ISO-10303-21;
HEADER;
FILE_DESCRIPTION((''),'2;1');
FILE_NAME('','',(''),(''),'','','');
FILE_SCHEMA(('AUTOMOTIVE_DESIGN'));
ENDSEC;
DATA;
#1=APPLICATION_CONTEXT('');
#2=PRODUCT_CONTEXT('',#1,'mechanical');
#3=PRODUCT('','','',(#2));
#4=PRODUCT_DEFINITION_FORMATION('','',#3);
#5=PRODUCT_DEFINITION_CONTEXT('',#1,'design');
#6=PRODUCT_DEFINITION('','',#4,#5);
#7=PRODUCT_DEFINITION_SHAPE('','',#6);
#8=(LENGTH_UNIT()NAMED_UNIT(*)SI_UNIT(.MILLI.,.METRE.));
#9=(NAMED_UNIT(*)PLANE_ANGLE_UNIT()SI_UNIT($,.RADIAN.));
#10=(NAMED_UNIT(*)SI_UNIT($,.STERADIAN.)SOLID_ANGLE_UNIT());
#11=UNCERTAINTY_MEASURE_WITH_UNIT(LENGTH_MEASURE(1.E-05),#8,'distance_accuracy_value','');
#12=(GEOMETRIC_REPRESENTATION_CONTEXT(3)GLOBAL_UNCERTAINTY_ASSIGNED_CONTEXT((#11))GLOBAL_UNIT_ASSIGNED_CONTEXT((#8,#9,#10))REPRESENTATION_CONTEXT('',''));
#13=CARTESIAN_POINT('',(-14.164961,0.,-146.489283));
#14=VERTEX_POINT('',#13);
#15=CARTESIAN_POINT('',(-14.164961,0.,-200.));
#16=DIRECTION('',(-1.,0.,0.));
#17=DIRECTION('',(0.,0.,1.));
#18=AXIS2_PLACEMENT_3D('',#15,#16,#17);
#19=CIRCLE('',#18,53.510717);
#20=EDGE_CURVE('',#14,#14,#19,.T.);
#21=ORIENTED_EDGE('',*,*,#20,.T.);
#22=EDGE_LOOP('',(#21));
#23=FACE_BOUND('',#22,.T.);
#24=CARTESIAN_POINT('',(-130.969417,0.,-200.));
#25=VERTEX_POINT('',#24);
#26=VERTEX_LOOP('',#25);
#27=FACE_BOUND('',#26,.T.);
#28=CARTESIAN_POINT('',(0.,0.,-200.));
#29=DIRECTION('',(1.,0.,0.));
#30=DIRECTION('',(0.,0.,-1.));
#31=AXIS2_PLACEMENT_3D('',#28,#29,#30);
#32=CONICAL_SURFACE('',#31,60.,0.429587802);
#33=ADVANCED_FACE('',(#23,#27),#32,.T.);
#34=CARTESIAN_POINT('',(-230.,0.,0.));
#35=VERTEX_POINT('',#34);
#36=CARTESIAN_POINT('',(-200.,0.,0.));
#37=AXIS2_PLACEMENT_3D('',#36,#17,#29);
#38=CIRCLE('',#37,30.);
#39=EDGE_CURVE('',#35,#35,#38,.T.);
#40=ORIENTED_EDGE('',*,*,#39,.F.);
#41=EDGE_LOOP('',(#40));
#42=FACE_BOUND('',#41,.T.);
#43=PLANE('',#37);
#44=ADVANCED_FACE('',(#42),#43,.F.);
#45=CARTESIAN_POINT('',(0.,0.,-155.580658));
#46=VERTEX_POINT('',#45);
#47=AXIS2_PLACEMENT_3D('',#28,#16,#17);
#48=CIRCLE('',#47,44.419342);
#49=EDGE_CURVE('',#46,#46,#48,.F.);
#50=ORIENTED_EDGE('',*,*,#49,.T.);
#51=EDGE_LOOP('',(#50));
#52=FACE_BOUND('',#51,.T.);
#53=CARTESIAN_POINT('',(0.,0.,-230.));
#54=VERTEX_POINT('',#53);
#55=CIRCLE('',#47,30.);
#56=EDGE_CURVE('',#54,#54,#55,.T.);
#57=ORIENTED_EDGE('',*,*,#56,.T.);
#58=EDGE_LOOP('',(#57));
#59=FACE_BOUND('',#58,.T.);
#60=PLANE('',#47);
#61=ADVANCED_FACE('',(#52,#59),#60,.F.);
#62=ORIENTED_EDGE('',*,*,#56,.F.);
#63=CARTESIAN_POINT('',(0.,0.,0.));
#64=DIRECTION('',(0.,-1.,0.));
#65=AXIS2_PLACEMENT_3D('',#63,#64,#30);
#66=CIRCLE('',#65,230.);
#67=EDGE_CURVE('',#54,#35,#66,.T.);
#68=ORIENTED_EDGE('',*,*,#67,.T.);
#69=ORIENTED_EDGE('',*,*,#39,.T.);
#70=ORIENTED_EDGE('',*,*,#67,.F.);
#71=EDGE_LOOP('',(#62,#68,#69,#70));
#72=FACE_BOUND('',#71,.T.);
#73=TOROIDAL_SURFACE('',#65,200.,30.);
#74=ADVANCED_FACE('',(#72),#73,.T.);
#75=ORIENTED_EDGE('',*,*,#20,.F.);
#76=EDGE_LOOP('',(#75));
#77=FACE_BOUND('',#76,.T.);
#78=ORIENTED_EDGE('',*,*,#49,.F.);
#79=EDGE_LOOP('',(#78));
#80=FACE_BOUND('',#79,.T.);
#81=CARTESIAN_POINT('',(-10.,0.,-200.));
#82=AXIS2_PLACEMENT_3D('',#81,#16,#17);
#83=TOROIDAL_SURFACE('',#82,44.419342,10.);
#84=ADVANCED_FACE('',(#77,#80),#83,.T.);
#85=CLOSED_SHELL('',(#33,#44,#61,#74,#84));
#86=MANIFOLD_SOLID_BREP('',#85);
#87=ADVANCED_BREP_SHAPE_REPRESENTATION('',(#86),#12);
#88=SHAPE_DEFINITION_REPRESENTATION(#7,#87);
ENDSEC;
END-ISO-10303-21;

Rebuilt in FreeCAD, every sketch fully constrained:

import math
import FreeCAD as App
import Part
import Sketcher

V = App.Vector


def edges_at(feature, points):
    """Names of the edges that pass closest to the given points."""
    edges = feature.Shape.Edges
    near = lambda p: min(range(len(edges)), key=lambda i: edges[i].distToShape(Part.Vertex(*p))[0])
    return sorted({f"Edge{near(p) + 1}" for p in points})

doc = App.newDocument("Part")
body = doc.addObject("PartDesign::Body", "Body")

# Sketch on XY plane
sketch1 = body.newObject("Sketcher::SketchObject", "Sketch")
sketch1.AttachmentSupport = (doc.getObject("XY_Plane"), [""])
sketch1.MapMode = "FlatFace"
sketch1.addGeometry(Part.Circle(V(-200, 0, 0), V(0, 0, 1), 30), False)
sketch1.addConstraint(Sketcher.Constraint("PointOnObject", 0, 3, -1))
sketch1.addConstraint(Sketcher.Constraint("Diameter", 0, 60.0))
sketch1.addConstraint(Sketcher.Constraint("DistanceX", 0, 3, -1, 1, 200.0))

# Sketch on XZ plane
sketch2 = body.newObject("Sketcher::SketchObject", "Sketch001")
sketch2.AttachmentSupport = (doc.getObject("XZ_Plane"), [""])
sketch2.MapMode = "FlatFace"
sketch2.addGeometry(Part.ArcOfCircle(Part.Circle(V(0, 0, 0), V(0, 0, 1), 200), math.radians(-90), math.radians(180)), False)
sketch2.addConstraint(Sketcher.Constraint("Coincident", 0, 3, -1, 1))
sketch2.addConstraint(Sketcher.Constraint("PointOnObject", 0, 1, -2))
sketch2.addConstraint(Sketcher.Constraint("PointOnObject", 0, 2, -1))
sketch2.addConstraint(Sketcher.Constraint("Radius", 0, 200.0))
doc.recompute()

additivepipe = body.newObject("PartDesign::AdditivePipe", "AdditivePipe")
additivepipe.Profile = sketch1
additivepipe.Spine = (sketch2, ["Edge1"])

# Sketch on XZ plane
sketch3 = body.newObject("Sketcher::SketchObject", "Sketch002")
sketch3.AttachmentSupport = (doc.getObject("XZ_Plane"), [""])
sketch3.MapMode = "FlatFace"
sketch3.addGeometry(Part.LineSegment(V(0, -140, 0), V(0, -200, 0)), False)
sketch3.addGeometry(Part.LineSegment(V(0, -200, 0), V(-130.969417, -200, 0)), False)
sketch3.addGeometry(Part.LineSegment(V(-130.969417, -200, 0), V(0, -140, 0)), False)
sketch3.addGeometry(Part.LineSegment(V(-130.969417, -200, 0), V(0, -200, 0)), True)  # axis
sketch3.addConstraint(Sketcher.Constraint("Coincident", 0, 2, 1, 1))
sketch3.addConstraint(Sketcher.Constraint("Coincident", 1, 2, 2, 1))
sketch3.addConstraint(Sketcher.Constraint("Coincident", 2, 2, 0, 1))
sketch3.addConstraint(Sketcher.Constraint("Vertical", 0))
sketch3.addConstraint(Sketcher.Constraint("Horizontal", 1))
sketch3.addConstraint(Sketcher.Constraint("Horizontal", 3))
sketch3.addConstraint(Sketcher.Constraint("Coincident", 3, 1, 1, 2))
sketch3.addConstraint(Sketcher.Constraint("PointOnObject", 0, 2, -2))
sketch3.addConstraint(Sketcher.Constraint("PointOnObject", 3, 2, -2))
sketch3.addConstraint(Sketcher.Constraint("DistanceY", 0, 2, 0, 1, 60.0))
sketch3.addConstraint(Sketcher.Constraint("DistanceY", 0, 2, -1, 1, 200.0))
sketch3.addConstraint(Sketcher.Constraint("DistanceX", 1, 2, 1, 1, 130.969417))
revolution = body.newObject("PartDesign::Revolution", "Revolution")
revolution.Profile = sketch3
revolution.ReferenceAxis = (sketch3, ["Axis0"])
revolution.Angle = 360
doc.recompute()

fillet = body.newObject("PartDesign::Fillet", "Fillet")
fillet.Base = (revolution, edges_at(revolution, [(0, 0, -140)]))
fillet.Radius = 10

doc.recompute()
